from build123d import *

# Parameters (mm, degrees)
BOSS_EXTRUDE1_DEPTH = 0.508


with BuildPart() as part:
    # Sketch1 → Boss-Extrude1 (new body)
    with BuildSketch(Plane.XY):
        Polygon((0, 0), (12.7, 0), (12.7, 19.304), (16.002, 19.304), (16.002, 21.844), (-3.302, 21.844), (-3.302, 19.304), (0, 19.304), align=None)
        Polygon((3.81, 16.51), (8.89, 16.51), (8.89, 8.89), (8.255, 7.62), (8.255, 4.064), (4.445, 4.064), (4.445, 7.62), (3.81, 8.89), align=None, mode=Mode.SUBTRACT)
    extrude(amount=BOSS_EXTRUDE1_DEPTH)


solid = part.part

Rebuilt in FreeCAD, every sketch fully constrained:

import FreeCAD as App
import Part
import Sketcher
Q = App.Units.Quantity

doc = App.newDocument("Part")
body = doc.addObject("PartDesign::Body", "Body")

# Sketch on XY plane
sketch1 = body.newObject("Sketcher::SketchObject", "Sketch")
sketch1.AttachmentSupport = (doc.getObject("XY_Plane"), [""])
sketch1.MapMode = "FlatFace"
sketch1.addGeometry([
    Part.LineSegment(App.Vector(0, 0, 0), App.Vector(12.7, 0, 0)),  # 0
    Part.LineSegment(App.Vector(12.7, 0, 0), App.Vector(12.7, 19.3, 0)),  # 1
    Part.LineSegment(App.Vector(12.7, 19.3, 0), App.Vector(16, 19.3, 0)),  # 2
    Part.LineSegment(App.Vector(16, 19.3, 0), App.Vector(16, 21.8, 0)),  # 3
    Part.LineSegment(App.Vector(16, 21.8, 0), App.Vector(-3.3, 21.8, 0)),  # 4
    Part.LineSegment(App.Vector(-3.3, 21.8, 0), App.Vector(-3.3, 19.3, 0)),  # 5
    Part.LineSegment(App.Vector(-3.3, 19.3, 0), App.Vector(0, 19.3, 0)),  # 6
    Part.LineSegment(App.Vector(0, 19.3, 0), App.Vector(0, 0, 0)),  # 7
    Part.LineSegment(App.Vector(3.8, 8.9, 0), App.Vector(3.8, 16.5, 0)),  # 8
    Part.LineSegment(App.Vector(3.8, 16.5, 0), App.Vector(8.9, 16.5, 0)),  # 9
    Part.LineSegment(App.Vector(8.9, 16.5, 0), App.Vector(8.9, 8.9, 0)),  # 10
    Part.LineSegment(App.Vector(8.9, 8.9, 0), App.Vector(8.3, 7.6, 0)),  # 11
    Part.LineSegment(App.Vector(8.3, 7.6, 0), App.Vector(8.3, 4.1, 0)),  # 12
    Part.LineSegment(App.Vector(8.3, 4.1, 0), App.Vector(4.4, 4.1, 0)),  # 13
    Part.LineSegment(App.Vector(4.4, 4.1, 0), App.Vector(4.4, 7.6, 0)),  # 14
    Part.LineSegment(App.Vector(4.4, 7.6, 0), App.Vector(3.8, 8.9, 0)),  # 15
], False)
sketch1.addConstraint([
    Sketcher.Constraint("Coincident", 0, 2, 1, 1),
    Sketcher.Constraint("Coincident", 1, 2, 2, 1),
    Sketcher.Constraint("Coincident", 2, 2, 3, 1),
    Sketcher.Constraint("Coincident", 3, 2, 4, 1),
    Sketcher.Constraint("Coincident", 4, 2, 5, 1),
    Sketcher.Constraint("Coincident", 5, 2, 6, 1),
    Sketcher.Constraint("Coincident", 6, 2, 7, 1),
    Sketcher.Constraint("Coincident", 7, 2, 0, 1),
    Sketcher.Constraint("Coincident", 8, 2, 9, 1),
    Sketcher.Constraint("Coincident", 9, 2, 10, 1),
    Sketcher.Constraint("Coincident", 10, 2, 11, 1),
    Sketcher.Constraint("Coincident", 11, 2, 12, 1),
    Sketcher.Constraint("Coincident", 12, 2, 13, 1),
    Sketcher.Constraint("Coincident", 13, 2, 14, 1),
    Sketcher.Constraint("Coincident", 14, 2, 15, 1),
    Sketcher.Constraint("Coincident", 15, 2, 8, 1),
    Sketcher.Constraint("Horizontal", 0),
    Sketcher.Constraint("Vertical", 1),
    Sketcher.Constraint("Horizontal", 2),
    Sketcher.Constraint("Vertical", 3),
    Sketcher.Constraint("Horizontal", 4),
    Sketcher.Constraint("Vertical", 5),
    Sketcher.Constraint("Horizontal", 6),
    Sketcher.Constraint("Vertical", 7),
    Sketcher.Constraint("Vertical", 8),
    Sketcher.Constraint("Horizontal", 9),
    Sketcher.Constraint("Vertical", 10),
    Sketcher.Constraint("Vertical", 12),
    Sketcher.Constraint("Horizontal", 13),
    Sketcher.Constraint("Vertical", 14),
    Sketcher.Constraint("Coincident", 7, 2, -1, 1),
    Sketcher.Constraint("Horizontal", 2, 2, 5, 2),
    Sketcher.Constraint("Horizontal", 11, 2, 14, 2),
    Sketcher.Constraint("Horizontal", 10, 2, 15, 2),
    Sketcher.Constraint("Equal", 2, 6),
    Sketcher.Constraint("Equal", 4, 1),
    Sketcher.Constraint("Equal", 11, 15),
    Sketcher.Constraint("DistanceX", 0, 1, 0, 2, Q("0.5 in")),
    Sketcher.Constraint("DistanceX", 9, 1, 9, 2, Q("0.2 in")),
    Sketcher.Constraint("DistanceY", 3, 1, 3, 2, Q("0.1 in")),
    Sketcher.Constraint("DistanceY", 8, 1, 8, 2, Q("0.3 in")),
    Sketcher.Constraint("DistanceX", 2, 1, 2, 2, Q("0.13 in")),
    Sketcher.Constraint("DistanceX", 13, 2, 13, 1, Q("0.15 in")),
    Sketcher.Constraint("DistanceY", 12, 2, 12, 1, Q("0.14 in")),
    Sketcher.Constraint("DistanceY", -1, 1, 11, 2, Q("0.3 in")),
    Sketcher.Constraint("DistanceX", -1, 1, 8, 2, Q("0.15 in")),
    Sketcher.Constraint("DistanceY", -1, 1, 8, 2, Q("0.65 in")),
])
pad1 = body.newObject("PartDesign::Pad", "Pad")
pad1.Profile = sketch1
pad1.Length = Q("0.02 in")

doc.recompute()
